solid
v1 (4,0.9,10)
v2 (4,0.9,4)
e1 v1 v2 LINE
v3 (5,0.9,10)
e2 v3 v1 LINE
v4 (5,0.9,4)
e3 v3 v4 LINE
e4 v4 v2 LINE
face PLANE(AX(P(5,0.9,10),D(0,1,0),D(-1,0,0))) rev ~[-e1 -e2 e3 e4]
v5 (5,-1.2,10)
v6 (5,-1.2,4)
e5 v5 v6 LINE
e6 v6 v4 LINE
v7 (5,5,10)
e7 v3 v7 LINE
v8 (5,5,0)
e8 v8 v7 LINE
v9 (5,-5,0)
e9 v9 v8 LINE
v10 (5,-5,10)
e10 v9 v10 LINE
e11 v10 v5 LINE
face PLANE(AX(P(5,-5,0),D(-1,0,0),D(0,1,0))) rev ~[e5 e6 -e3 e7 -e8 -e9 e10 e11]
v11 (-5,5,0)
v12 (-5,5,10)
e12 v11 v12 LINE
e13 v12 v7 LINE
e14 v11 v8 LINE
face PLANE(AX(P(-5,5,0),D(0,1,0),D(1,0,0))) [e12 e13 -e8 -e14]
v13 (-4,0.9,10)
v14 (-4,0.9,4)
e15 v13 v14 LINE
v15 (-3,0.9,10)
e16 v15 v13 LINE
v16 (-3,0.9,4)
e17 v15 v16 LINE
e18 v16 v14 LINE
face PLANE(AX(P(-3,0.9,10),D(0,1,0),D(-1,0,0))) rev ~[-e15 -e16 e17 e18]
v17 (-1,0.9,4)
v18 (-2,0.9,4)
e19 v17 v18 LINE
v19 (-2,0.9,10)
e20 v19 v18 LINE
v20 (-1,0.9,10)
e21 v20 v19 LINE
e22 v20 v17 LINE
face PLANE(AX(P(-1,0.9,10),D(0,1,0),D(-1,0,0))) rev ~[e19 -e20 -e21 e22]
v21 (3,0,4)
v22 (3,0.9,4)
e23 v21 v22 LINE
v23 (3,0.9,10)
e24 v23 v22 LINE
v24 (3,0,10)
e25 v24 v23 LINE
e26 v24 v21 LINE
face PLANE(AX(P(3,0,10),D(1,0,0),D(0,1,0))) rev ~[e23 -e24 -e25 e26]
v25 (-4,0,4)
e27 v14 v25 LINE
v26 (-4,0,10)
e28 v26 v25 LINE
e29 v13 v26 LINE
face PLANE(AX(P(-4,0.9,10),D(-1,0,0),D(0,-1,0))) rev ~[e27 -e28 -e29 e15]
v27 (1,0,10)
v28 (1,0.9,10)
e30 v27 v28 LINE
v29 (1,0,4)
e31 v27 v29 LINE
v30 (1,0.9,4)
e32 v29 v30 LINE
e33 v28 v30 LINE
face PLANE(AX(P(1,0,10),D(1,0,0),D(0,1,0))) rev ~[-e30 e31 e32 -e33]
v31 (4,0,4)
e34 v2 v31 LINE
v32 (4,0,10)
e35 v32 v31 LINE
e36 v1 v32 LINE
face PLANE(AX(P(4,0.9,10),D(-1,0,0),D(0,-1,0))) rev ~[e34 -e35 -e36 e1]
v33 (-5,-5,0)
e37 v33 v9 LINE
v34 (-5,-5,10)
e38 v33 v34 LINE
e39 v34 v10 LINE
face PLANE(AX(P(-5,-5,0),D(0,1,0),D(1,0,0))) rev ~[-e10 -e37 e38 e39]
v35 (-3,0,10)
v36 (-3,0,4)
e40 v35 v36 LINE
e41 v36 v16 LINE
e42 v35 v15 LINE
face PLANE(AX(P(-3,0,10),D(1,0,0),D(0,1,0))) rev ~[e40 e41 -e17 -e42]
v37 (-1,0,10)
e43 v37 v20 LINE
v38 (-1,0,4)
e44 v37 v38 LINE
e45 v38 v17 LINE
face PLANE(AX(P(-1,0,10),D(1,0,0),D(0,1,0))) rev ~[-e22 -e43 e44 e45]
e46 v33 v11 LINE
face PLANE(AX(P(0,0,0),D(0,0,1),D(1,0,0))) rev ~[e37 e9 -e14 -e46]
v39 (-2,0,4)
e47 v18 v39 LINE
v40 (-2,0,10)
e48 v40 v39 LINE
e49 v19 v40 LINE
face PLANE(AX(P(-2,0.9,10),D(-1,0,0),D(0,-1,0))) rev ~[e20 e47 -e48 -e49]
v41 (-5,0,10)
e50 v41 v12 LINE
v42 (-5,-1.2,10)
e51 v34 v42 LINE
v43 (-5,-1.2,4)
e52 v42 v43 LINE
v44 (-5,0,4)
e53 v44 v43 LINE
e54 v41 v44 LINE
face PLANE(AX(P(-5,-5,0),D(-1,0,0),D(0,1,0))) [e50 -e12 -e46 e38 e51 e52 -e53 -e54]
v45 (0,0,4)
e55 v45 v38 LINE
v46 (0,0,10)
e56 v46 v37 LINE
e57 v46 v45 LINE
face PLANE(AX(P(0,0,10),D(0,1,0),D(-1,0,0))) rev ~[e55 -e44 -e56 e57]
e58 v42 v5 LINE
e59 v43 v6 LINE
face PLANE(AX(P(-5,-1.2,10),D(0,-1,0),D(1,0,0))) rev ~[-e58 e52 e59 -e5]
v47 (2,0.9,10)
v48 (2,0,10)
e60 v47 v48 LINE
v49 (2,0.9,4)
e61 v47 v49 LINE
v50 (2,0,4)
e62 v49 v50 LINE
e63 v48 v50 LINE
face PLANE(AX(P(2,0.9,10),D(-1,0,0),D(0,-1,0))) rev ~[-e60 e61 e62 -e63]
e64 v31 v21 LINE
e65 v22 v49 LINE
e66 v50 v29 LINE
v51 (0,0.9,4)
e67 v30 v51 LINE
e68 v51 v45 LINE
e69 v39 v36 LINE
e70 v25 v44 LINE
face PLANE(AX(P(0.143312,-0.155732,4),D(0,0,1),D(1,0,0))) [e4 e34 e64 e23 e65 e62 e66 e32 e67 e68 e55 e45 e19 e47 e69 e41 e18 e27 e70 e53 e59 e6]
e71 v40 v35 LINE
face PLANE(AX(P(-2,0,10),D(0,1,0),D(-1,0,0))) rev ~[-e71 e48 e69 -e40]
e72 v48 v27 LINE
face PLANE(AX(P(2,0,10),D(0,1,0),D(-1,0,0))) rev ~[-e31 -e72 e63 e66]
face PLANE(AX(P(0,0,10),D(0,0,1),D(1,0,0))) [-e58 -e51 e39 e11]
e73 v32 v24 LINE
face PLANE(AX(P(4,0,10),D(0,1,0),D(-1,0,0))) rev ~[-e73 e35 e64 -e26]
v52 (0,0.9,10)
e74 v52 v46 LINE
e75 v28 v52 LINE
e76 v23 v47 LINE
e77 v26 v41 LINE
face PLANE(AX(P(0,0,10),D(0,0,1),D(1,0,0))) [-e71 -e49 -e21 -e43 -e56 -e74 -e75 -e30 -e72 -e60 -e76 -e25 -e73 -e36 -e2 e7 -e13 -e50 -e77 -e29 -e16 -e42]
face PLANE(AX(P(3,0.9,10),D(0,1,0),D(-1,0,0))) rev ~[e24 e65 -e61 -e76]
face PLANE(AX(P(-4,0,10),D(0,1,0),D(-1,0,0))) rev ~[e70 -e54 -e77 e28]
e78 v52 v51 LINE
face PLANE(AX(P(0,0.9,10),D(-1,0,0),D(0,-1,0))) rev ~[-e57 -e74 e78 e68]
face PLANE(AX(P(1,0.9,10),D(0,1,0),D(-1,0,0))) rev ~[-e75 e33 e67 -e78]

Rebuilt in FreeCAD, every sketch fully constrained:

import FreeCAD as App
import Part
import Sketcher
from FreeCAD import Vector
Q = App.Units.Quantity


def add_polygon(sketch, points):
    """Adds a closed chain of lines whose ends are joined by coincident constraints."""
    first, n = sketch.GeometryCount, len(points)
    for a, b in zip(points, points[1:] + points[:1]):
        sketch.addGeometry(Part.LineSegment(App.Vector(*a, 0), App.Vector(*b, 0)), False)
    for i in range(n):
        sketch.addConstraint(Sketcher.Constraint("Coincident", first + i, 2, first + (i + 1) % n, 1))

doc = App.newDocument("Part")
params = doc.addObject("Spreadsheet::Sheet", "Params")
for row, (alias, value) in enumerate([
    ("sketch1_width", "10 mm"),
    ("pad1_length", "10 mm"),
    ("sketch2_width", "1 mm"),
    ("sketch2_height", "1.2 mm"),
    ("sketch2_height2", "2.1 mm"),
    ("pocket1_length", "6 mm"),
], start=1):
    params.set(f"A{row}", alias)
    params.set(f"B{row}", "=" + value)
    params.setAlias(f"B{row}", alias)

body = doc.addObject("PartDesign::Body", "Body")

# Sketch on XY plane
sketch1 = body.newObject("Sketcher::SketchObject", "Sketch")
sketch1.AttachmentSupport = (doc.getObject("XY_Plane"), [""])
sketch1.MapMode = "FlatFace"
add_polygon(sketch1, [(-5, 5), (-5, -5), (5, -5), (5, 5)])  # lines 0-3
sketch1.addConstraint(Sketcher.Constraint("Vertical", 0))
sketch1.addConstraint(Sketcher.Constraint("Horizontal", 1))
sketch1.addConstraint(Sketcher.Constraint("Vertical", 2))
sketch1.addConstraint(Sketcher.Constraint("Horizontal", 3))
sketch1.addConstraint(Sketcher.Constraint("Symmetric", 0, 2, 2, 2, -1, 1))
sketch1.addConstraint(Sketcher.Constraint("Equal", 3, 0))
sketch1.addConstraint(Sketcher.Constraint("DistanceX", 1, 1, 1, 2, Q("10 mm")))
sketch1.setExpression("Constraints[10]", "Params.sketch1_width")
pad1 = body.newObject("PartDesign::Pad", "Pad")
pad1.Profile = sketch1
pad1.setExpression("Length", "Params.pad1_length")

# Sketch on XY plane
sketch2 = body.newObject("Sketcher::SketchObject", "Sketch001")
sketch2.AttachmentSupport = (doc.getObject("XY_Plane"), [""])
sketch2.MapMode = "FlatFace"
sketch2.AttachmentOffset = App.Placement(Vector(0, 0, 10), App.Rotation())
add_polygon(sketch2, [(-4, 0), (-5, 0), (-5, -1.2), (5, -1.2), (5, 0.9), (4, 0.9), (4, 0), (3, 0), (3, 0.9), (2, 0.9), (2, 0), (1, 0), (1, 0.9), (0, 0.9), (0, 0), (-1, 0), (-1, 0.9), (-2, 0.9), (-2, 0), (-3, 0), (-3, 0.9), (-4, 0.9)])  # lines 0-21
sketch2.addConstraint(Sketcher.Constraint("Horizontal", 0))
sketch2.addConstraint(Sketcher.Constraint("Vertical", 1))
sketch2.addConstraint(Sketcher.Constraint("Horizontal", 2))
sketch2.addConstraint(Sketcher.Constraint("Vertical", 3))
sketch2.addConstraint(Sketcher.Constraint("Horizontal", 4))
sketch2.addConstraint(Sketcher.Constraint("Vertical", 5))
sketch2.addConstraint(Sketcher.Constraint("Horizontal", 6))
sketch2.addConstraint(Sketcher.Constraint("Vertical", 7))
sketch2.addConstraint(Sketcher.Constraint("Horizontal", 8))
sketch2.addConstraint(Sketcher.Constraint("Vertical", 9))
sketch2.addConstraint(Sketcher.Constraint("Horizontal", 10))
sketch2.addConstraint(Sketcher.Constraint("Vertical", 11))
sketch2.addConstraint(Sketcher.Constraint("Horizontal", 12))
sketch2.addConstraint(Sketcher.Constraint("Vertical", 13))
sketch2.addConstraint(Sketcher.Constraint("Horizontal", 14))
sketch2.addConstraint(Sketcher.Constraint("Vertical", 15))
sketch2.addConstraint(Sketcher.Constraint("Horizontal", 16))
sketch2.addConstraint(Sketcher.Constraint("Vertical", 17))
sketch2.addConstraint(Sketcher.Constraint("Horizontal", 18))
sketch2.addConstraint(Sketcher.Constraint("Vertical", 19))
sketch2.addConstraint(Sketcher.Constraint("Horizontal", 20))
sketch2.addConstraint(Sketcher.Constraint("Vertical", 21))
sketch2.addConstraint(Sketcher.Constraint("Coincident", 13, 2, -1, 1))
sketch2.addConstraint(Sketcher.Constraint("Symmetric", 10, 2, 14, 2, -1, 1))
sketch2.addConstraint(Sketcher.Constraint("Symmetric", 9, 2, 17, 2, -1, 1))
sketch2.addConstraint(Sketcher.Constraint("Symmetric", 6, 2, 18, 2, -1, 1))
sketch2.addConstraint(Sketcher.Constraint("Symmetric", 5, 2, 21, 2, -1, 1))
sketch2.addConstraint(Sketcher.Constraint("Horizontal", 4, 2, 7, 2))
sketch2.addConstraint(Sketcher.Constraint("Horizontal", 8, 2, 11, 2))
sketch2.addConstraint(Sketcher.Constraint("Horizontal", 12, 2, 15, 2))
sketch2.addConstraint(Sketcher.Constraint("Horizontal", 16, 2, 19, 2))
sketch2.addConstraint(Sketcher.Constraint("Equal", 0, 4))
sketch2.addConstraint(Sketcher.Constraint("Equal", 4, 6))
sketch2.addConstraint(Sketcher.Constraint("Equal", 6, 8))
sketch2.addConstraint(Sketcher.Constraint("Equal", 8, 10))
sketch2.addConstraint(Sketcher.Constraint("Equal", 10, 12))
sketch2.addConstraint(Sketcher.Constraint("DistanceX", 0, 2, 0, 1, Q("1 mm")))
sketch2.addConstraint(Sketcher.Constraint("DistanceY", 1, 2, 1, 1, Q("1.2 mm")))
sketch2.addConstraint(Sketcher.Constraint("DistanceY", 3, 1, 3, 2, Q("2.1 mm")))
sketch2.setExpression("Constraints[58]", "Params.sketch2_width")
sketch2.setExpression("Constraints[59]", "Params.sketch2_height")
sketch2.setExpression("Constraints[60]", "Params.sketch2_height2")
pocket1 = body.newObject("PartDesign::Pocket", "Pocket")
pocket1.Profile = sketch2
pocket1.setExpression("Length", "Params.pocket1_length")

doc.recompute()
